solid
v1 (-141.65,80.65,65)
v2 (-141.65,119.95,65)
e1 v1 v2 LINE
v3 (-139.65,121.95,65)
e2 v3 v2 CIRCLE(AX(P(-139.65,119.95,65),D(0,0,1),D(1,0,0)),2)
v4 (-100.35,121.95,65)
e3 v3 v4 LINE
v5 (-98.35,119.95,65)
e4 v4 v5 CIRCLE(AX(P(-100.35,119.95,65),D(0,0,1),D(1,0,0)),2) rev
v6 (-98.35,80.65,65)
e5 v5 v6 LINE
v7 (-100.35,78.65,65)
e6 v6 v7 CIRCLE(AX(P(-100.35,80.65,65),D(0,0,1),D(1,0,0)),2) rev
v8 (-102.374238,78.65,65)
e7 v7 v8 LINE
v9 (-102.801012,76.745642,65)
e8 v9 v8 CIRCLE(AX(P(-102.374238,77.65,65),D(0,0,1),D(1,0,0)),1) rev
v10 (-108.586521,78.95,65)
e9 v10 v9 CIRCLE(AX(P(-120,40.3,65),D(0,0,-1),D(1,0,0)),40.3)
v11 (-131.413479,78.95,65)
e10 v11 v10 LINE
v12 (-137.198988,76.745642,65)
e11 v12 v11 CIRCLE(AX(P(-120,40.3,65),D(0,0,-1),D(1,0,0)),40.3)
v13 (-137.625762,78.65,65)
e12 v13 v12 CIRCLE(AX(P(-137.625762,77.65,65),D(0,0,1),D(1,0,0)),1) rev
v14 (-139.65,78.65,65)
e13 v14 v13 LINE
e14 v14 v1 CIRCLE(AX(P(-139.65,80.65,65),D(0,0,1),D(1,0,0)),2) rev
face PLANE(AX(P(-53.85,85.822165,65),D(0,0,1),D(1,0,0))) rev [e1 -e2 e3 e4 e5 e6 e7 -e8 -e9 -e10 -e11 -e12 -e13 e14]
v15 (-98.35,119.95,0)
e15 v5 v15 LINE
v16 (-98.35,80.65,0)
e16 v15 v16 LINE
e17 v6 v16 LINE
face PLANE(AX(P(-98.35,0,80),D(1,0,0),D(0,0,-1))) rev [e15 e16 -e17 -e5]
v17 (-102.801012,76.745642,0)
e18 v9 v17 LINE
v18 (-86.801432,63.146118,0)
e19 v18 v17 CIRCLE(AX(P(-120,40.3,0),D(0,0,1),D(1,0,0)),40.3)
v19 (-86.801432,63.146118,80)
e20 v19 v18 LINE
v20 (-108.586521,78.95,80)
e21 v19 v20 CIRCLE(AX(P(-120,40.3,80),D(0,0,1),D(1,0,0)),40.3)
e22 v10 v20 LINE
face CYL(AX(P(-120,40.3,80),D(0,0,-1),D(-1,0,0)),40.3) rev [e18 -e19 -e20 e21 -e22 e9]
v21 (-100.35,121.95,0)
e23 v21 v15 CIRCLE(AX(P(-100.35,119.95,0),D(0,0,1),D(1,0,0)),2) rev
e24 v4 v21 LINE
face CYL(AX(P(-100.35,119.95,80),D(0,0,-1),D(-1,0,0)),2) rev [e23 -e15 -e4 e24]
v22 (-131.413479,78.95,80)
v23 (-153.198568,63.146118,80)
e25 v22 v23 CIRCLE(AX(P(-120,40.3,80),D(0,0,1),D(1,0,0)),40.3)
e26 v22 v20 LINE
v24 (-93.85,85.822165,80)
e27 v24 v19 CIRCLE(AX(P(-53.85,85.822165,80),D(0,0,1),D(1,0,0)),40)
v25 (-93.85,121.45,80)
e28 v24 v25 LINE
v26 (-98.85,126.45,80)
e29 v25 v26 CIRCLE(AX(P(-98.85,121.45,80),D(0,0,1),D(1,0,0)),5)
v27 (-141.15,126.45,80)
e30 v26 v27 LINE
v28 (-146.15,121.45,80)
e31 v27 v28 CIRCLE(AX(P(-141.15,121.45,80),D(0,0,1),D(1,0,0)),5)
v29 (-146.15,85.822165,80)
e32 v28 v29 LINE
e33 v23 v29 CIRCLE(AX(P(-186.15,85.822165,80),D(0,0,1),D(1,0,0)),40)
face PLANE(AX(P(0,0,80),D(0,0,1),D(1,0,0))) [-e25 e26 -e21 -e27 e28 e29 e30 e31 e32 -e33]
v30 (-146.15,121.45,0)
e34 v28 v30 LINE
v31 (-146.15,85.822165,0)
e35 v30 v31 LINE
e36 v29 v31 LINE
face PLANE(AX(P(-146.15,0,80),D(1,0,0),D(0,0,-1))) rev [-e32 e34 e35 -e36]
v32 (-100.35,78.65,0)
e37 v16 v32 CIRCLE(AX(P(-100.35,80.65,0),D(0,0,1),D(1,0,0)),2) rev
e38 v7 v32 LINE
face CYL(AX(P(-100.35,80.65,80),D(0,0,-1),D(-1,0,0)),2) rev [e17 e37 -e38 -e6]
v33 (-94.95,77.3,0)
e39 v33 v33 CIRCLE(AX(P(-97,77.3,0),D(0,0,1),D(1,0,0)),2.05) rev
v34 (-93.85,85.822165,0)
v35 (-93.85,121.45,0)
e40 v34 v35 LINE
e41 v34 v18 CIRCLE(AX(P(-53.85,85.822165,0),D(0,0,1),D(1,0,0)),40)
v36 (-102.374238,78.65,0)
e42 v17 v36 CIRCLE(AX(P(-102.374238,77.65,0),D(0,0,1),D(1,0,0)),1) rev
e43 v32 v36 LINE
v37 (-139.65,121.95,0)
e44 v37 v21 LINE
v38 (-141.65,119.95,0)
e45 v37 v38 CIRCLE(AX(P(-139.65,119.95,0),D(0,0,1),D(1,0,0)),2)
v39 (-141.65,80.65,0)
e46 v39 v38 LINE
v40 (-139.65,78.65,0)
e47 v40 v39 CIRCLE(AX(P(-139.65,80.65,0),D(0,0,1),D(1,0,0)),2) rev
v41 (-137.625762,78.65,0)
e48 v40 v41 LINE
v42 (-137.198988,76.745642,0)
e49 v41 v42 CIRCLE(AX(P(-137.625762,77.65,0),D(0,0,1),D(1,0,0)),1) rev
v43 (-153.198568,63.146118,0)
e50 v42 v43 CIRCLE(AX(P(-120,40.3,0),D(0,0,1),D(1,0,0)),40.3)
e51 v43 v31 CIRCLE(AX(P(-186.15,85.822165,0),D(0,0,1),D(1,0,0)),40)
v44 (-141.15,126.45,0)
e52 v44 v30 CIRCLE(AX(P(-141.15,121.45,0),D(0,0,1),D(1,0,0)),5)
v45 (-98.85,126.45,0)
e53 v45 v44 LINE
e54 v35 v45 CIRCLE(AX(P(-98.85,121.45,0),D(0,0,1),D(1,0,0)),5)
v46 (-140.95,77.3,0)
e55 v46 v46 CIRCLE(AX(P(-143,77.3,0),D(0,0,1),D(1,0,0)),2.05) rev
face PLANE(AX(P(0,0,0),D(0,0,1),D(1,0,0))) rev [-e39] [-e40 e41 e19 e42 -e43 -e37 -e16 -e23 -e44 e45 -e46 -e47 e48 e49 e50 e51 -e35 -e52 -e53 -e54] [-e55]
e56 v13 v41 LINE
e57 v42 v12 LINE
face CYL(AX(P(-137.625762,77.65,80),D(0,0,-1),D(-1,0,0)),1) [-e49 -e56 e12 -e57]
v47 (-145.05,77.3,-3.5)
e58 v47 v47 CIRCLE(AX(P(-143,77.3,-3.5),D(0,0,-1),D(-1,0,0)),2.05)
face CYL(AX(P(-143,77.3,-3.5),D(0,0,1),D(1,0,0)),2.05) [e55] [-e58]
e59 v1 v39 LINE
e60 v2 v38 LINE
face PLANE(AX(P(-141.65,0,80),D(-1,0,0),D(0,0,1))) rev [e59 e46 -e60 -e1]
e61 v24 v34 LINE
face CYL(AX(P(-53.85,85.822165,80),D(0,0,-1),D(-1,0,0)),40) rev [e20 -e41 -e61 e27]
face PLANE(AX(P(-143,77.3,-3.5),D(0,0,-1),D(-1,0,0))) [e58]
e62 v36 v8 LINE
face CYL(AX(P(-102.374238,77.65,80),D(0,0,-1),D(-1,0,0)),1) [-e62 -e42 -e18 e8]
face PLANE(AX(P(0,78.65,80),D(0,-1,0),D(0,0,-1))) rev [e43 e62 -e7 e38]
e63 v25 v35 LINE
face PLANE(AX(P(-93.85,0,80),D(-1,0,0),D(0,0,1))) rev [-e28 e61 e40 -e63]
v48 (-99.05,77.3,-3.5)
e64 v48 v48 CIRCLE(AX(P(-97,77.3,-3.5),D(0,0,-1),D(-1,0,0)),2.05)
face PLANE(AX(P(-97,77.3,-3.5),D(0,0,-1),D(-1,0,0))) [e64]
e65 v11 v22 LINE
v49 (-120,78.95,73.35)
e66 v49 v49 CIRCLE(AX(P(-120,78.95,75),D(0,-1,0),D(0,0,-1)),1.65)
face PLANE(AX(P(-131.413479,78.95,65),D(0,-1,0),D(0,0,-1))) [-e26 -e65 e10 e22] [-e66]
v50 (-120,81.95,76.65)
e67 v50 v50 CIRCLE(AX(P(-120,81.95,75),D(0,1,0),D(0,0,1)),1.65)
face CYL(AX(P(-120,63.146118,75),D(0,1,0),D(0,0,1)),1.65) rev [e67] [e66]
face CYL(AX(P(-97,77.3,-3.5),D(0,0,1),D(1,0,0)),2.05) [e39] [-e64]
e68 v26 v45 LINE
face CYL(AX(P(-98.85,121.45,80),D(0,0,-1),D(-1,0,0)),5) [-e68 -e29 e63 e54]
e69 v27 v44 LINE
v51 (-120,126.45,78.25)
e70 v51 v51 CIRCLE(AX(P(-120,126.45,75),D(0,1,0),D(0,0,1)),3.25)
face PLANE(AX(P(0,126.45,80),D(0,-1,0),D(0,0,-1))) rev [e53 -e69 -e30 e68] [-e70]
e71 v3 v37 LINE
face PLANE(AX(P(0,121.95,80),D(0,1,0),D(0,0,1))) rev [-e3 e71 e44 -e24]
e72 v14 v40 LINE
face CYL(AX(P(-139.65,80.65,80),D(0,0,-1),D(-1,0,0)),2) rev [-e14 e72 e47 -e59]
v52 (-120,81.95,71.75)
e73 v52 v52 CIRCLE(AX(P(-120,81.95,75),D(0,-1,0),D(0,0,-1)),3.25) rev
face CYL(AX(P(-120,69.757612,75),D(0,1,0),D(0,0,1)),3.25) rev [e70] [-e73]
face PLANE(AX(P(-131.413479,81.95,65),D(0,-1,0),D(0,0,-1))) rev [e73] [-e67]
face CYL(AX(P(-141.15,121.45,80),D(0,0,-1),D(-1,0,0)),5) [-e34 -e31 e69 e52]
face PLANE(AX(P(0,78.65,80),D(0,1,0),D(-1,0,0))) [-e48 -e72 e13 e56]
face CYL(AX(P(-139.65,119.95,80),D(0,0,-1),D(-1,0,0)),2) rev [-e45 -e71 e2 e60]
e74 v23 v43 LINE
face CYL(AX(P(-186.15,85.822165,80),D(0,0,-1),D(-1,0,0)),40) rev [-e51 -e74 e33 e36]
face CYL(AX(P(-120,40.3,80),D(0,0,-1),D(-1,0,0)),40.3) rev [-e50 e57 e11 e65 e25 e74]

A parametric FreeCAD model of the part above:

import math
import FreeCAD as App
import Part
import Sketcher
from FreeCAD import Vector
Q = App.Units.Quantity


def edges_at(feature, points):
    """Names of the edges that pass closest to the given points."""
    edges = feature.Shape.Edges
    near = lambda p: min(range(len(edges)), key=lambda i: edges[i].distToShape(Part.Vertex(*p))[0])
    return sorted({f"Edge{near(p) + 1}" for p in points})

doc = App.newDocument("Part")
body = doc.addObject("PartDesign::Body", "Body")

sketch1 = body.newObject("Sketcher::SketchObject", "Sketch")
sketch1.AttachmentSupport = (doc.getObject("XY_Plane"), [""])
sketch1.MapMode = "FlatFace"
sketch1.addGeometry(Part.ArcOfCircle(Part.Circle(Vector(-139.6, 119.9, 0), Vector(0, 0, 1), 2), math.radians(90), math.radians(180)), False)
sketch1.addGeometry(Part.LineSegment(Vector(-139.7, 122, 0), Vector(-100.3, 122, 0)), False)
sketch1.addGeometry(Part.ArcOfCircle(Part.Circle(Vector(-100.4, 119.9, 0), Vector(0, 0, 1), 2), math.radians(0), math.radians(90)), False)
sketch1.addGeometry(Part.LineSegment(Vector(-98.3, 120, 0), Vector(-98.3, 80.7, 0)), False)
sketch1.addGeometry(Part.ArcOfCircle(Part.Circle(Vector(-100.4, 80.7, 0), Vector(0, 0, 1), 2), math.radians(-90), math.radians(0)), False)
sketch1.addGeometry(Part.LineSegment(Vector(-100.3, 78.7, 0), Vector(-107.6, 78.7, 0)), False)
sketch1.addGeometry(Part.ArcOfCircle(Part.Circle(Vector(-120, 40.3, 0), Vector(0, 0, 1), 40.3), math.radians(35), math.radians(72)), False)
sketch1.addGeometry(Part.ArcOfCircle(Part.Circle(Vector(-53.9, 85.8, 0), Vector(0, 0, 1), 40), math.radians(180), math.radians(215)), False)
sketch1.addGeometry(Part.LineSegment(Vector(-93.8, 85.8, 0), Vector(-93.8, 121.5, 0)), False)
sketch1.addGeometry(Part.ArcOfCircle(Part.Circle(Vector(-98.8, 121.5, 0), Vector(0, 0, 1), 5), math.radians(0), math.radians(90)), False)
sketch1.addGeometry(Part.LineSegment(Vector(-98.8, 126.5, 0), Vector(-141.2, 126.5, 0)), False)
sketch1.addGeometry(Part.ArcOfCircle(Part.Circle(Vector(-141.2, 121.5, 0), Vector(0, 0, 1), 5), math.radians(90), math.radians(180)), False)
sketch1.addGeometry(Part.LineSegment(Vector(-146.2, 121.5, 0), Vector(-146.2, 85.8, 0)), False)
sketch1.addGeometry(Part.ArcOfCircle(Part.Circle(Vector(-186.1, 85.8, 0), Vector(0, 0, 1), 40), math.radians(-35), math.radians(0)), False)
sketch1.addGeometry(Part.ArcOfCircle(Part.Circle(Vector(-120, 40.3, 0), Vector(0, 0, 1), 40.3), math.radians(108), math.radians(145)), False)
sketch1.addGeometry(Part.LineSegment(Vector(-132.4, 78.7, 0), Vector(-139.7, 78.7, 0)), False)
sketch1.addGeometry(Part.ArcOfCircle(Part.Circle(Vector(-139.6, 80.7, 0), Vector(0, 0, 1), 2), math.radians(-180), math.radians(-90)), False)
sketch1.addGeometry(Part.LineSegment(Vector(-141.7, 80.7, 0), Vector(-141.7, 120, 0)), False)
sketch1.addConstraint(Sketcher.Constraint("Tangent", 0, 1, 1, 1))
sketch1.addConstraint(Sketcher.Constraint("Tangent", 1, 2, 2, 2))
sketch1.addConstraint(Sketcher.Constraint("Tangent", 2, 1, 3, 1))
sketch1.addConstraint(Sketcher.Constraint("Tangent", 3, 2, 4, 2))
sketch1.addConstraint(Sketcher.Constraint("Tangent", 4, 1, 5, 1))
sketch1.addConstraint(Sketcher.Constraint("Coincident", 5, 2, 6, 2))
sketch1.addConstraint(Sketcher.Constraint("Tangent", 6, 1, 7, 2))
sketch1.addConstraint(Sketcher.Constraint("Tangent", 7, 1, 8, 1))
sketch1.addConstraint(Sketcher.Constraint("Tangent", 8, 2, 9, 1))
sketch1.addConstraint(Sketcher.Constraint("Tangent", 9, 2, 10, 1))
sketch1.addConstraint(Sketcher.Constraint("Tangent", 10, 2, 11, 1))
sketch1.addConstraint(Sketcher.Constraint("Tangent", 11, 2, 12, 1))
sketch1.addConstraint(Sketcher.Constraint("Tangent", 12, 2, 13, 2))
sketch1.addConstraint(Sketcher.Constraint("Tangent", 13, 1, 14, 2))
sketch1.addConstraint(Sketcher.Constraint("Coincident", 14, 1, 15, 1))
sketch1.addConstraint(Sketcher.Constraint("Tangent", 15, 2, 16, 2))
sketch1.addConstraint(Sketcher.Constraint("Tangent", 16, 1, 17, 1))
sketch1.addConstraint(Sketcher.Constraint("Tangent", 17, 2, 0, 2))
sketch1.addConstraint(Sketcher.Constraint("Horizontal", 1))
sketch1.addConstraint(Sketcher.Constraint("Vertical", 3))
sketch1.addConstraint(Sketcher.Constraint("Horizontal", 5))
sketch1.addConstraint(Sketcher.Constraint("Vertical", 8))
sketch1.addConstraint(Sketcher.Constraint("Horizontal", 10))
sketch1.addConstraint(Sketcher.Constraint("Vertical", 12))
sketch1.addConstraint(Sketcher.Constraint("Horizontal", 15))
sketch1.addConstraint(Sketcher.Constraint("Vertical", 17))
sketch1.addConstraint(Sketcher.Constraint("Coincident", 14, 3, 6, 3))
sketch1.addConstraint(Sketcher.Constraint("Equal", 0, 2))
sketch1.addConstraint(Sketcher.Constraint("Equal", 2, 4))
sketch1.addConstraint(Sketcher.Constraint("Equal", 9, 11))
sketch1.addConstraint(Sketcher.Constraint("Equal", 7, 13))
sketch1.addConstraint(Sketcher.Constraint("Equal", 6, 14))
sketch1.addConstraint(Sketcher.Constraint("Equal", 4, 16))
sketch1.addConstraint(Sketcher.Constraint("Horizontal", 7, 3, 13, 3))
sketch1.addConstraint(Sketcher.Constraint("Horizontal", 4, 3, 16, 3))
sketch1.addConstraint(Sketcher.Constraint("Equal", 5, 15))
sketch1.addConstraint(Sketcher.Constraint("Equal", 1, 3))
sketch1.addConstraint(Sketcher.Constraint("Radius", 0, Q("2 mm")))
sketch1.addConstraint(Sketcher.Constraint("Radius", 7, Q("40 mm")))
sketch1.addConstraint(Sketcher.Constraint("Radius", 9, Q("5 mm")))
sketch1.addConstraint(Sketcher.Constraint("Radius", 6, Q("40.3 mm")))
sketch1.addConstraint(Sketcher.Constraint("DistanceX", 1, 1, 1, 2, Q("39.3 mm")))
sketch1.addConstraint(Sketcher.Constraint("DistanceX", 10, 2, 10, 1, Q("42.3 mm")))
sketch1.addConstraint(Sketcher.Constraint("DistanceX", 6, 3, -1, 1, Q("120 mm")))
sketch1.addConstraint(Sketcher.Constraint("DistanceY", -1, 1, 6, 3, Q("40.3 mm")))
sketch1.addConstraint(Sketcher.Constraint("DistanceY", 2, 3, 9, 3, Q("1.5 mm")))
sketch1.addConstraint(Sketcher.Constraint("DistanceY", -1, 1, 0, 3, Q("119.95 mm")))
pad1 = body.newObject("PartDesign::Pad", "Pad")
pad1.Profile = sketch1
pad1.Length = 80
doc.recompute()

fillet = body.newObject("PartDesign::Fillet", "Fillet")
fillet.Base = (pad1, edges_at(pad1, [(-107.616, 78.65, 40), (-132.384, 78.65, 40)]))
fillet.Radius = 1

sketch2 = body.newObject("Sketcher::SketchObject", "Sketch001")
sketch2.AttachmentSupport = (doc.getObject("XY_Plane"), [""])
sketch2.MapMode = "FlatFace"
sketch2.addGeometry(Part.Circle(Vector(-143, 77.3, 0), Vector(0, 0, 1), 2), False)
sketch2.addGeometry(Part.Circle(Vector(-97, 77.3, 0), Vector(0, 0, 1), 2), False)
sketch2.addConstraint(Sketcher.Constraint("Equal", 0, 1))
sketch2.addConstraint(Sketcher.Constraint("Horizontal", 0, 3, 1, 3))
sketch2.addConstraint(Sketcher.Constraint("Diameter", 0, Q("4.1 mm")))
sketch2.addConstraint(Sketcher.Constraint("DistanceX", 0, 3, -1, 1, Q("143 mm")))
sketch2.addConstraint(Sketcher.Constraint("DistanceX", 1, 3, -1, 1, Q("97 mm")))
sketch2.addConstraint(Sketcher.Constraint("DistanceY", -1, 1, 0, 3, Q("77.3 mm")))
pad2 = body.newObject("PartDesign::Pad", "Pad001")
pad2.Profile = sketch2
pad2.Length = 3.5
pad2.Reversed = True

sketch3 = body.newObject("Sketcher::SketchObject", "Sketch002")
sketch3.AttachmentSupport = (doc.getObject("XY_Plane"), [""])
sketch3.MapMode = "FlatFace"
sketch3.AttachmentOffset = App.Placement(Vector(0, 0, 65), App.Rotation())
sketch3.addGeometry(Part.LineSegment(Vector(-94, 86, 0), Vector(-94, 121, 0)), False)
sketch3.addGeometry(Part.ArcOfCircle(Part.Circle(Vector(-99, 121, 0), Vector(0, 0, 1), 5), math.radians(0), math.radians(90)), False)
sketch3.addGeometry(Part.LineSegment(Vector(-99, 126, 0), Vector(-141, 126, 0)), False)
sketch3.addGeometry(Part.ArcOfCircle(Part.Circle(Vector(-141, 121, 0), Vector(0, 0, 1), 5), math.radians(90), math.radians(180)), False)
sketch3.addGeometry(Part.LineSegment(Vector(-146, 121, 0), Vector(-146, 86, 0)), False)
sketch3.addGeometry(Part.ArcOfCircle(Part.Circle(Vector(-186, 86, 0), Vector(0, 0, 1), 40), math.radians(-35), math.radians(0)), False)
sketch3.addGeometry(Part.ArcOfCircle(Part.Circle(Vector(-120, 40, 0), Vector(0, 0, 1), 40), math.radians(106), math.radians(145)), False)
sketch3.addGeometry(Part.LineSegment(Vector(-131, 79, 0), Vector(-109, 79, 0)), False)
sketch3.addGeometry(Part.ArcOfCircle(Part.Circle(Vector(-120, 40, 0), Vector(0, 0, 1), 40), math.radians(35), math.radians(74)), False)
sketch3.addGeometry(Part.ArcOfCircle(Part.Circle(Vector(-54, 86, 0), Vector(0, 0, 1), 40), math.radians(180), math.radians(215)), False)
sketch3.addConstraint(Sketcher.Constraint("Tangent", 0, 2, 1, 1))
sketch3.addConstraint(Sketcher.Constraint("Tangent", 1, 2, 2, 1))
sketch3.addConstraint(Sketcher.Constraint("Tangent", 2, 2, 3, 1))
sketch3.addConstraint(Sketcher.Constraint("Tangent", 3, 2, 4, 1))
sketch3.addConstraint(Sketcher.Constraint("Tangent", 4, 2, 5, 2))
sketch3.addConstraint(Sketcher.Constraint("Tangent", 5, 1, 6, 2))
sketch3.addConstraint(Sketcher.Constraint("Coincident", 6, 1, 7, 1))
sketch3.addConstraint(Sketcher.Constraint("Coincident", 7, 2, 8, 2))
sketch3.addConstraint(Sketcher.Constraint("Tangent", 8, 1, 9, 2))
sketch3.addConstraint(Sketcher.Constraint("Tangent", 9, 1, 0, 1))
sketch3.addConstraint(Sketcher.Constraint("Vertical", 0))
sketch3.addConstraint(Sketcher.Constraint("Horizontal", 2))
sketch3.addConstraint(Sketcher.Constraint("Vertical", 4))
sketch3.addConstraint(Sketcher.Constraint("Horizontal", 7))
sketch3.addConstraint(Sketcher.Constraint("Coincident", 8, 3, 6, 3))
sketch3.addConstraint(Sketcher.Constraint("Equal", 1, 3))
sketch3.addConstraint(Sketcher.Constraint("Equal", 6, 8))
sketch3.addConstraint(Sketcher.Constraint("Equal", 5, 9))
sketch3.addConstraint(Sketcher.Constraint("Horizontal", 5, 3, 9, 3))
sketch3.addConstraint(Sketcher.Constraint("Radius", 1, Q("5 mm")))
sketch3.addConstraint(Sketcher.Constraint("Radius", 5, Q("40 mm")))
sketch3.addConstraint(Sketcher.Constraint("Radius", 6, Q("40.3 mm")))
sketch3.addConstraint(Sketcher.Constraint("DistanceX", 2, 2, 2, 1, Q("42.3 mm")))
sketch3.addConstraint(Sketcher.Constraint("DistanceX", 6, 3, -1, 1, Q("120 mm")))
sketch3.addConstraint(Sketcher.Constraint("DistanceY", -1, 1, 6, 3, Q("40.3 mm")))
sketch3.addConstraint(Sketcher.Constraint("DistanceY", 6, 1, 3, 3, Q("42.5 mm")))
sketch3.addConstraint(Sketcher.Constraint("DistanceY", -1, 1, 1, 3, Q("121.45 mm")))
pad3 = body.newObject("PartDesign::Pad", "Pad002")
pad3.Profile = sketch3
pad3.Length = 15

sketch4 = body.newObject("Sketcher::SketchObject", "Sketch003")
sketch4.AttachmentSupport = (doc.getObject("XZ_Plane"), [""])
sketch4.MapMode = "FlatFace"
sketch4.AttachmentOffset = App.Placement(Vector(0, 0, -126.45), App.Rotation())
sketch4.addGeometry(Part.Circle(Vector(-120, 75, 0), Vector(0, 0, 1), 3.2), False)
sketch4.addConstraint(Sketcher.Constraint("Diameter", 0, Q("6.5 mm")))
sketch4.addConstraint(Sketcher.Constraint("DistanceX", 0, 3, -1, 1, Q("120 mm")))
sketch4.addConstraint(Sketcher.Constraint("DistanceY", -1, 1, 0, 3, Q("75 mm")))
pocket1 = body.newObject("PartDesign::Pocket", "Pocket")
pocket1.Profile = sketch4
pocket1.Length = 44.5
pocket1.Reversed = True

sketch5 = body.newObject("Sketcher::SketchObject", "Sketch004")
sketch5.AttachmentSupport = (doc.getObject("XZ_Plane"), [""])
sketch5.MapMode = "FlatFace"
sketch5.AttachmentOffset = App.Placement(Vector(0, 0, -81.95), App.Rotation())
sketch5.addGeometry(Part.Circle(Vector(-120, 75, 0), Vector(0, 0, 1), 1.6), False)
sketch5.addConstraint(Sketcher.Constraint("Diameter", 0, Q("3.3 mm")))
sketch5.addConstraint(Sketcher.Constraint("DistanceX", 0, 3, -1, 1, Q("120 mm")))
sketch5.addConstraint(Sketcher.Constraint("DistanceY", -1, 1, 0, 3, Q("75 mm")))
pocket2 = body.newObject("PartDesign::Pocket", "Pocket001")
pocket2.Profile = sketch5
pocket2.Type = "ThroughAll"
pocket2.Reversed = True

doc.recompute()
